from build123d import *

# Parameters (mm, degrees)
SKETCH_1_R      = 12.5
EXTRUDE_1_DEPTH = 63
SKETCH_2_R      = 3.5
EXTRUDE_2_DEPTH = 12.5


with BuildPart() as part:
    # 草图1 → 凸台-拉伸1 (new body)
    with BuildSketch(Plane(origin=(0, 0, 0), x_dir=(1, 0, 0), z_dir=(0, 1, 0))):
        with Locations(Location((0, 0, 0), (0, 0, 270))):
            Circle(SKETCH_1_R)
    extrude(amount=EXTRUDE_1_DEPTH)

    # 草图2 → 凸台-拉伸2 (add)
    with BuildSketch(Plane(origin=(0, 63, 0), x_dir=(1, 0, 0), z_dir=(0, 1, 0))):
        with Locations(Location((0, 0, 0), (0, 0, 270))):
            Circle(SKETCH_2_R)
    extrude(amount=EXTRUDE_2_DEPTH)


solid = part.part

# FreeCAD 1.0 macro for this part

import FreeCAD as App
import Part
import Sketcher

doc = App.newDocument("Part")
body = doc.addObject("PartDesign::Body", "Body")

sketch1 = body.newObject("Sketcher::SketchObject", "Sketch")
sketch1.AttachmentSupport = (doc.getObject("XZ_Plane"), [""])
sketch1.MapMode = "FlatFace"
sketch1.addGeometry(Part.Circle(App.Vector(0, 0, 0), App.Vector(0, 0, 1), 12), False)
sketch1.addConstraint(Sketcher.Constraint("Coincident", 0, 3, -1, 1))
sketch1.addConstraint(Sketcher.Constraint("Diameter", 0, 25.0))
pad1 = body.newObject("PartDesign::Pad", "Pad")
pad1.Profile = sketch1
pad1.Length = 63
pad1.Reversed = True

sketch2 = body.newObject("Sketcher::SketchObject", "Sketch001")
sketch2.AttachmentSupport = (doc.getObject("XZ_Plane"), [""])
sketch2.MapMode = "FlatFace"
sketch2.AttachmentOffset = App.Placement(App.Vector(0, 0, -63), App.Rotation())
sketch2.addGeometry(Part.Circle(App.Vector(0, 0, 0), App.Vector(0, 0, 1), 3.5), False)
sketch2.addConstraint(Sketcher.Constraint("Coincident", 0, 3, -1, 1))
sketch2.addConstraint(Sketcher.Constraint("Diameter", 0, 7.0))
pad2 = body.newObject("PartDesign::Pad", "Pad001")
pad2.Profile = sketch2
pad2.Length = 12.5
pad2.Reversed = True

doc.recompute()
